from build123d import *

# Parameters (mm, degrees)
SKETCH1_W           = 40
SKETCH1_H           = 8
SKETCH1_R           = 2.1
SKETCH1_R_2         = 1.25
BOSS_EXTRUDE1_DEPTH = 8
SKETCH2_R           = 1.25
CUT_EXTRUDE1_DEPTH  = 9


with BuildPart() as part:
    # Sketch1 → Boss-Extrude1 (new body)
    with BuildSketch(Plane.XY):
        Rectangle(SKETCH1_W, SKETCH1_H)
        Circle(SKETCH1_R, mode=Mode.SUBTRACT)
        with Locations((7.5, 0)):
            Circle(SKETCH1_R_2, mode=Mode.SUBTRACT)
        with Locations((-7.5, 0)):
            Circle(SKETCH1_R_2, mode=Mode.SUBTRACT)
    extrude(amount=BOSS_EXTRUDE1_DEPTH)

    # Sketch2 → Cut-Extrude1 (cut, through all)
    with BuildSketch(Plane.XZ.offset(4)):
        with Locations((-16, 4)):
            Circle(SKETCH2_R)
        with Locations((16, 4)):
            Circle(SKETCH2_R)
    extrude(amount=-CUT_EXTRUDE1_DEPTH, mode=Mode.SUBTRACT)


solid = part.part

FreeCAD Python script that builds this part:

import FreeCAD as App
import Part
import Sketcher
from FreeCAD import Vector

doc = App.newDocument("Part")
params = doc.addObject("Spreadsheet::Sheet", "Params")
for row, (alias, value) in enumerate([
    ("sketch1_diameter", "2.5 mm"),
    ("sketch1_diameter2", "4.2 mm"),
    ("sketch1_width", "40 mm"),
    ("sketch1_height", "8 mm"),
    ("pad1_length", "8 mm"),
    ("sketch2_diameter", "2.5 mm"),
], start=1):
    params.set(f"A{row}", alias)
    params.set(f"B{row}", "=" + value)
    params.setAlias(f"B{row}", alias)

body = doc.addObject("PartDesign::Body", "Body")

# Sketch on XY plane
sketch1 = body.newObject("Sketcher::SketchObject", "Sketch")
sketch1.AttachmentSupport = (doc.getObject("XY_Plane"), [""])
sketch1.MapMode = "FlatFace"
sketch1.addGeometry(Part.LineSegment(Vector(-20, 4, 0), Vector(-20, -4, 0)), False)
sketch1.addGeometry(Part.LineSegment(Vector(-20, -4, 0), Vector(20, -4, 0)), False)
sketch1.addGeometry(Part.LineSegment(Vector(20, -4, 0), Vector(20, 4, 0)), False)
sketch1.addGeometry(Part.LineSegment(Vector(20, 4, 0), Vector(-20, 4, 0)), False)
sketch1.addGeometry(Part.Circle(Vector(-7.5, 0, 0), Vector(0, 0, 1), 1.25), False)
sketch1.addGeometry(Part.Circle(Vector(0, 0, 0), Vector(0, 0, 1), 2.1), False)
sketch1.addGeometry(Part.Circle(Vector(7.5, 0, 0), Vector(0, 0, 1), 1.25), False)
sketch1.addConstraint(Sketcher.Constraint("Coincident", 0, 2, 1, 1))
sketch1.addConstraint(Sketcher.Constraint("Coincident", 1, 2, 2, 1))
sketch1.addConstraint(Sketcher.Constraint("Coincident", 2, 2, 3, 1))
sketch1.addConstraint(Sketcher.Constraint("Coincident", 3, 2, 0, 1))
sketch1.addConstraint(Sketcher.Constraint("Vertical", 0))
sketch1.addConstraint(Sketcher.Constraint("Horizontal", 1))
sketch1.addConstraint(Sketcher.Constraint("Vertical", 2))
sketch1.addConstraint(Sketcher.Constraint("Horizontal", 3))
sketch1.addConstraint(Sketcher.Constraint("Coincident", 5, 3, -1, 1))
sketch1.addConstraint(Sketcher.Constraint("Equal", 4, 6))
sketch1.addConstraint(Sketcher.Constraint("Symmetric", 4, 3, 6, 3, -1, 1))
sketch1.addConstraint(Sketcher.Constraint("Symmetric", 0, 2, 2, 2, -1, 1))
sketch1.addConstraint(Sketcher.Constraint("PointOnObject", 4, 3, -1))
sketch1.addConstraint(Sketcher.Constraint("Diameter", 4, 2.5))
sketch1.addConstraint(Sketcher.Constraint("Diameter", 5, 4.2))
sketch1.addConstraint(Sketcher.Constraint("DistanceX", 1, 1, 1, 2, 40.0))
sketch1.addConstraint(Sketcher.Constraint("DistanceY", 0, 2, 0, 1, 8.0))
sketch1.addConstraint(Sketcher.Constraint("DistanceX", 4, 3, 6, 3, 15.0))
sketch1.setExpression("Constraints[13]", "Params.sketch1_diameter")
sketch1.setExpression("Constraints[14]", "Params.sketch1_diameter2")
sketch1.setExpression("Constraints[15]", "Params.sketch1_width")
sketch1.setExpression("Constraints[16]", "Params.sketch1_height")
pad1 = body.newObject("PartDesign::Pad", "Pad")
pad1.Profile = sketch1
pad1.setExpression("Length", "Params.pad1_length")

# Sketch on XZ plane
sketch2 = body.newObject("Sketcher::SketchObject", "Sketch001")
sketch2.AttachmentSupport = (doc.getObject("XZ_Plane"), [""])
sketch2.MapMode = "FlatFace"
sketch2.AttachmentOffset = App.Placement(Vector(0, 0, 4), App.Rotation())
sketch2.addGeometry(Part.Circle(Vector(-16, 4, 0), Vector(0, 0, 1), 1.25), False)
sketch2.addGeometry(Part.Circle(Vector(16, 4, 0), Vector(0, 0, 1), 1.25), False)
sketch2.addConstraint(Sketcher.Constraint("Equal", 0, 1))
sketch2.addConstraint(Sketcher.Constraint("Symmetric", 0, 3, 1, 3, -2))
sketch2.addConstraint(Sketcher.Constraint("Diameter", 0, 2.5))
sketch2.addConstraint(Sketcher.Constraint("DistanceX", 0, 3, -1, 1, 16.0))
sketch2.addConstraint(Sketcher.Constraint("DistanceY", -1, 1, 0, 3, 4.0))
sketch2.setExpression("Constraints[2]", "Params.sketch2_diameter")
pocket1 = body.newObject("PartDesign::Pocket", "Pocket")
pocket1.Profile = sketch2
pocket1.Type = "ThroughAll"

doc.recompute()
